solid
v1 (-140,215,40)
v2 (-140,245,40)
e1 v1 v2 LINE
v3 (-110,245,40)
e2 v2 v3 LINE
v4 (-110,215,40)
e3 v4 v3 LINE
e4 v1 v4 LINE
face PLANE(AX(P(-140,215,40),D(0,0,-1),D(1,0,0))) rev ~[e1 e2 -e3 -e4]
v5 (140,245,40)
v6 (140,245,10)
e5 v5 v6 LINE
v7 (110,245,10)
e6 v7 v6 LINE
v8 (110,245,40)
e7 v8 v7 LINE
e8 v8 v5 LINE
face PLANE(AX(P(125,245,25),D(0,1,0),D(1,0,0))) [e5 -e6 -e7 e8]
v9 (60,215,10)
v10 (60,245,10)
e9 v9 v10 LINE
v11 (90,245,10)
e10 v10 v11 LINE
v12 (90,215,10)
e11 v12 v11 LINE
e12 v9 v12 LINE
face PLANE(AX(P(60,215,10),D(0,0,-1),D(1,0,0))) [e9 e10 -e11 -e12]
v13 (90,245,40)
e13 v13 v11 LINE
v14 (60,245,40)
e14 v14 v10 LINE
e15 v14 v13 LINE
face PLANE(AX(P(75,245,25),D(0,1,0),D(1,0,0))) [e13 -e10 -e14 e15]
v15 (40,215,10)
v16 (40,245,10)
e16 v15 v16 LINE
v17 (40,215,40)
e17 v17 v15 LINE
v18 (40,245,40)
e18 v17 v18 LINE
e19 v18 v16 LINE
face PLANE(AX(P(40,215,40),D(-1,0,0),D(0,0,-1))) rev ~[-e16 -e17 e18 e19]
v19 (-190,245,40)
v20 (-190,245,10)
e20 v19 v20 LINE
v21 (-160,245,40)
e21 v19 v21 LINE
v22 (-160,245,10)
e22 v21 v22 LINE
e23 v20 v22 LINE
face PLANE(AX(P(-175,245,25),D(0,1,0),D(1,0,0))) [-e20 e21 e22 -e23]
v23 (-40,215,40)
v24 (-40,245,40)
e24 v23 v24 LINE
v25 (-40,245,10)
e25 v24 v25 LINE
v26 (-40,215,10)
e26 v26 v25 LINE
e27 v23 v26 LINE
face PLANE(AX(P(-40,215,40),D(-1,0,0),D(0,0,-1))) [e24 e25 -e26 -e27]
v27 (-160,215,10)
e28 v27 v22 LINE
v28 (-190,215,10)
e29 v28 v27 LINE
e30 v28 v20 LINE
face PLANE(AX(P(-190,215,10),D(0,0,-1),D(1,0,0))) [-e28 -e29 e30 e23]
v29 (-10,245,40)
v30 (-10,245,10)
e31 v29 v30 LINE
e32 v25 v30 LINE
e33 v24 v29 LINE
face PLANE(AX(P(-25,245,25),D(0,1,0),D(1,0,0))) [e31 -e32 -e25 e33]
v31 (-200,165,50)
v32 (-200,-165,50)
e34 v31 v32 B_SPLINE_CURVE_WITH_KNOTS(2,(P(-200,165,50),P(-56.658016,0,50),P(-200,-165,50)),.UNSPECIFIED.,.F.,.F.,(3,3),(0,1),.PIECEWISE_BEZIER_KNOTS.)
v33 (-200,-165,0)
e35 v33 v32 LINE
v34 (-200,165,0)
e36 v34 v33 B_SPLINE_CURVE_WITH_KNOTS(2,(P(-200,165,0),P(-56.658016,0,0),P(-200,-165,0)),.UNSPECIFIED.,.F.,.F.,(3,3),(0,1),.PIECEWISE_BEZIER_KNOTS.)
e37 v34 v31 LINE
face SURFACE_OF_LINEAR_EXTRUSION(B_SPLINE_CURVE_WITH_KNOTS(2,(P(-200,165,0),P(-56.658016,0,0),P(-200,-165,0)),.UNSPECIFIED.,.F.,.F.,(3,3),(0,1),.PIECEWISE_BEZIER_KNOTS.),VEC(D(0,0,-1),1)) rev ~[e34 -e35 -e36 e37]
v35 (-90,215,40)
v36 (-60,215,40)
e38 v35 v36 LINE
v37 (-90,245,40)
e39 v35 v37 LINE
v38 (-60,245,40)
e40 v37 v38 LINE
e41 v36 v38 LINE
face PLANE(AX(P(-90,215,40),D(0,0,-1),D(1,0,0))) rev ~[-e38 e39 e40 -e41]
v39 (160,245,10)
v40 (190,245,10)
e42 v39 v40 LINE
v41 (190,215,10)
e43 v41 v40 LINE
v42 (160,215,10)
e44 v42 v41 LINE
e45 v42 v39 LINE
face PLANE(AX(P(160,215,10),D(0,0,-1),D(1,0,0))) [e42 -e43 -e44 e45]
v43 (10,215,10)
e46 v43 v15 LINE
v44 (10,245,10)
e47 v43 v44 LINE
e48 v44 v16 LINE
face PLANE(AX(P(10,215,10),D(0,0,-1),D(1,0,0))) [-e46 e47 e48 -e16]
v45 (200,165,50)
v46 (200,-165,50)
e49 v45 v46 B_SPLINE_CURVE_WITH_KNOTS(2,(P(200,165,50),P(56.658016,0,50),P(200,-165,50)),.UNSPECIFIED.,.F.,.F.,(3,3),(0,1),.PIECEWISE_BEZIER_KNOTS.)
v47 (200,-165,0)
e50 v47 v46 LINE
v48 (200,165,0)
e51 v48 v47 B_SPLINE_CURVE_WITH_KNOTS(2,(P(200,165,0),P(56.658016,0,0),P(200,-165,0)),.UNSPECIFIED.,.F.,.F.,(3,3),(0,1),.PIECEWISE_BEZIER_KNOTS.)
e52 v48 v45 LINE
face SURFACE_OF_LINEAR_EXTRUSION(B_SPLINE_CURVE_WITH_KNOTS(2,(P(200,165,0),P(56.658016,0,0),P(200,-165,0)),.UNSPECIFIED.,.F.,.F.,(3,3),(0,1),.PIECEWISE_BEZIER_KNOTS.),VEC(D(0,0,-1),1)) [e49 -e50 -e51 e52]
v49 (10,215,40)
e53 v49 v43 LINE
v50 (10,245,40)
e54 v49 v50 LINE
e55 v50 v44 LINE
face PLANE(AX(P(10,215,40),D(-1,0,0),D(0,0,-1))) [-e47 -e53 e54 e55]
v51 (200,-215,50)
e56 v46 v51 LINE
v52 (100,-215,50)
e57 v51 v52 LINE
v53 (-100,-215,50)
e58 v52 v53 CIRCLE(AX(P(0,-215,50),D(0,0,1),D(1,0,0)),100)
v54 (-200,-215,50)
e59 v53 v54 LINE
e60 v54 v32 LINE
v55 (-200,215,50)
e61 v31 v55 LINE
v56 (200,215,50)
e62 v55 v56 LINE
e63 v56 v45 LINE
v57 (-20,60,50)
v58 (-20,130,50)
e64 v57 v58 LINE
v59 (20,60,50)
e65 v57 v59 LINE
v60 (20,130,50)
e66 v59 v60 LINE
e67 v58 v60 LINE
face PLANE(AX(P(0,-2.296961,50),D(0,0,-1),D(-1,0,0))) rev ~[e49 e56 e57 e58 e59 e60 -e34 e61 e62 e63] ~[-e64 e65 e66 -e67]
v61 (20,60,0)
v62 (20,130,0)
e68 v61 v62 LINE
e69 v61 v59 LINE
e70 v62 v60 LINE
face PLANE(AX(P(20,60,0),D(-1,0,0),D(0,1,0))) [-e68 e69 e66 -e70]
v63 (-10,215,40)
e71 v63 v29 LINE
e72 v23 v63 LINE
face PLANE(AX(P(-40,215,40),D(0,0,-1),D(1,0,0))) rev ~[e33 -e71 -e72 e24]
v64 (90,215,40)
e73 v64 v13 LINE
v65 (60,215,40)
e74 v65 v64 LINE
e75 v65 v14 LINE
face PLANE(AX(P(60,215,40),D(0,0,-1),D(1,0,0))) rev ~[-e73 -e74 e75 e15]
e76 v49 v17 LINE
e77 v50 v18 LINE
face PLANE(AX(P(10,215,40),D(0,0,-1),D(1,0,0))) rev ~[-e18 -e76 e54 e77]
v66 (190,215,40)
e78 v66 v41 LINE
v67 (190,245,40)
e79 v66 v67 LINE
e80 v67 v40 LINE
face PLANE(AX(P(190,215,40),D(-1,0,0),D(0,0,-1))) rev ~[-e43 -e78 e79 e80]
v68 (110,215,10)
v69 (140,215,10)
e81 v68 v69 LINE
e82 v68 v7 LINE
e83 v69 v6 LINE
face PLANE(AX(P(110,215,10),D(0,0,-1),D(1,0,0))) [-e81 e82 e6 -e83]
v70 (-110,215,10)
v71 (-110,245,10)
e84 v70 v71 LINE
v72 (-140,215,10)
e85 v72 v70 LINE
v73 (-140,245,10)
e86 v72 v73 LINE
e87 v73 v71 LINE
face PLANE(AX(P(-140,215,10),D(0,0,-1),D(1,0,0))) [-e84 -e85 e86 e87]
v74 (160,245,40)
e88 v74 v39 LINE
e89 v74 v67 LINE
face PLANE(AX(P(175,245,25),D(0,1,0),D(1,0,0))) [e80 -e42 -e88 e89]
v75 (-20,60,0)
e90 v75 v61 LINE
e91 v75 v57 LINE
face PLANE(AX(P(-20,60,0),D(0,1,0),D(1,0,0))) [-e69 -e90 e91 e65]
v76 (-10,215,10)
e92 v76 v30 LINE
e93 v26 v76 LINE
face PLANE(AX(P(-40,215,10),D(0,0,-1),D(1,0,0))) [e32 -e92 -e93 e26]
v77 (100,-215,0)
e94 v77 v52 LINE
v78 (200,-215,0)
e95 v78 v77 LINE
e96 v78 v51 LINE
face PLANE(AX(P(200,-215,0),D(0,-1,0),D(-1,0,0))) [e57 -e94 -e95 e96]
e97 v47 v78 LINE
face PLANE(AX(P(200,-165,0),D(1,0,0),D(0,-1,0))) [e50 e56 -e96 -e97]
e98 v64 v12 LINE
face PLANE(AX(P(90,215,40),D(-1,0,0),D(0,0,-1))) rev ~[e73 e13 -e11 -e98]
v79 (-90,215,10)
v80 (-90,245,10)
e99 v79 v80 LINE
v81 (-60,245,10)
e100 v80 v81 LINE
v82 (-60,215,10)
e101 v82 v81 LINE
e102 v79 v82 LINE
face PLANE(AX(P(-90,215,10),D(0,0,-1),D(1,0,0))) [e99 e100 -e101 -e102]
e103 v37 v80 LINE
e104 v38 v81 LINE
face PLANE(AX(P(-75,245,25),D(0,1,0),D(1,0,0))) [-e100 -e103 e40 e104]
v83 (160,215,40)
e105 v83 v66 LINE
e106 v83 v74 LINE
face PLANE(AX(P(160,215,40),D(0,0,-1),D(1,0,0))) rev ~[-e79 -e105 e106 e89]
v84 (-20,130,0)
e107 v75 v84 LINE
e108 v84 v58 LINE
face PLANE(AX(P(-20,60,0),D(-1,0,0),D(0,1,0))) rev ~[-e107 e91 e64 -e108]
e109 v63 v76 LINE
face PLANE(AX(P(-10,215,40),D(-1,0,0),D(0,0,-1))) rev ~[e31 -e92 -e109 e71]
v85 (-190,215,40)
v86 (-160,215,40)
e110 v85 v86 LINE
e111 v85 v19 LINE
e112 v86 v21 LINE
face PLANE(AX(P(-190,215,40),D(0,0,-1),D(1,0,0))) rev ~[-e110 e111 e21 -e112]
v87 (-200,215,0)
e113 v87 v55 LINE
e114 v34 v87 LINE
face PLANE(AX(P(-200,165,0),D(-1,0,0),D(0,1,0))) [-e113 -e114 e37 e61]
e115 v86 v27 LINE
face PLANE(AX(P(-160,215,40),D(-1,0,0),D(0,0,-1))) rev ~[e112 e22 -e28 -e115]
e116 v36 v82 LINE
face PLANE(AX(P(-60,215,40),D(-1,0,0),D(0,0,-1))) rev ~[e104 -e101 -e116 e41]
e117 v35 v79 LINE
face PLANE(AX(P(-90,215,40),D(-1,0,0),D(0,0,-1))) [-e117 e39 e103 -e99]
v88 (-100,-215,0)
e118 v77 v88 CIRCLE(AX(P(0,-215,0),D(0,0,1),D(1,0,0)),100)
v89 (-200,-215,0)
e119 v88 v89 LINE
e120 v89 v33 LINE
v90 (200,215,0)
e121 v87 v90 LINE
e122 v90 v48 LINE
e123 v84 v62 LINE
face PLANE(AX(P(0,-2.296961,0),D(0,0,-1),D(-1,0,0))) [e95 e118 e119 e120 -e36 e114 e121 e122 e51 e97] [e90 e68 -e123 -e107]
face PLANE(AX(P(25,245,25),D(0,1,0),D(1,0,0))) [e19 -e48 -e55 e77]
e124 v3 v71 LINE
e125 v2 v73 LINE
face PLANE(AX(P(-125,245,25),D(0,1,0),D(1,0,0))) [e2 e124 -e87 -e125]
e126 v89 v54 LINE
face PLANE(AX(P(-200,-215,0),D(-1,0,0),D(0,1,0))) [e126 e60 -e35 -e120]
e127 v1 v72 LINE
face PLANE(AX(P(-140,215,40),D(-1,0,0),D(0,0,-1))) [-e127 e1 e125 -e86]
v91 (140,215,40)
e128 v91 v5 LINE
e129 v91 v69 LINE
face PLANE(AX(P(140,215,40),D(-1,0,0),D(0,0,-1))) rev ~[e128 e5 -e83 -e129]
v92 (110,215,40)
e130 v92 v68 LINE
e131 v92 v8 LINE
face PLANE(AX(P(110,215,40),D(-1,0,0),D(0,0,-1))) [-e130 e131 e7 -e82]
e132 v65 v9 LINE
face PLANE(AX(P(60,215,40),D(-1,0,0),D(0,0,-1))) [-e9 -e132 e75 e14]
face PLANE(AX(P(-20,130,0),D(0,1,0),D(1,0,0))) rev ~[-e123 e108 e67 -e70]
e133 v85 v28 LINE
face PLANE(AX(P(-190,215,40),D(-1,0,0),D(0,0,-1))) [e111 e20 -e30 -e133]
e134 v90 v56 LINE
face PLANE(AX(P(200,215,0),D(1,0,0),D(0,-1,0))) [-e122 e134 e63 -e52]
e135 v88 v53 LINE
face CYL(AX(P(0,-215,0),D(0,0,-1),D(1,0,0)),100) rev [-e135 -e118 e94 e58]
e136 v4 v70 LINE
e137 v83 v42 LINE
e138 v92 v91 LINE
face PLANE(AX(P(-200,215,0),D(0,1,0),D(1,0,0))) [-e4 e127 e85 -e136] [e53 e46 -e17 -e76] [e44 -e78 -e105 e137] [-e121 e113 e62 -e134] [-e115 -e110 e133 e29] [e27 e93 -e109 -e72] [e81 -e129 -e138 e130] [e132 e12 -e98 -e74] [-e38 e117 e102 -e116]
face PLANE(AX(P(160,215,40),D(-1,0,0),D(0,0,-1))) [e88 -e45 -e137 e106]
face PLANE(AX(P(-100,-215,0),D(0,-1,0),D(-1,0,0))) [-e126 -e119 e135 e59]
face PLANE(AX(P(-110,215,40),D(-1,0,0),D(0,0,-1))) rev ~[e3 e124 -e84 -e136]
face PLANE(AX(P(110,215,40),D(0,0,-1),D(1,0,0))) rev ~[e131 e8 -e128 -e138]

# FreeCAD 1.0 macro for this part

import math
import FreeCAD as App
import Part
import Sketcher

V = App.Vector
Q = App.Units.Quantity

doc = App.newDocument("Part")
params = doc.addObject("Spreadsheet::Sheet", "Params")
for row, (alias, value) in enumerate([
    ("sketch1_radius", "100 mm"),
    ("sketch1_width", "40 mm"),
    ("sketch1_height", "50 mm"),
    ("sketch1_height2", "70 mm"),
    ("pad1_length", "50 mm"),
    ("sketch2_width", "30 mm"),
    ("pad2_length", "30 mm"),
], start=1):
    params.set(f"A{row}", alias)
    params.set(f"B{row}", "=" + value)
    params.setAlias(f"B{row}", alias)

body = doc.addObject("PartDesign::Body", "Body")

sketch1 = body.newObject("Sketcher::SketchObject", "Sketch")
sketch1.AttachmentSupport = (doc.getObject("XY_Plane"), [""])
sketch1.MapMode = "FlatFace"
sketch1.addGeometry([
    Part.LineSegment(V(-200, -215, 0), V(-100, -215, 0)),
    Part.ArcOfCircle(Part.Circle(V(0, -215, 0), V(0, 0, 1), 100), math.radians(0), math.radians(180)),
    Part.LineSegment(V(100, -215, 0), V(200, -215, 0)),
    Part.LineSegment(V(200, -215, 0), V(200, -165, 0)),
    Part.BSplineCurve([V(200, 165, 0), V(56.658016, 0, 0), V(200, -165, 0)], [3, 3], [0, 1], False, 2, [1, 1, 1], False),
    Part.LineSegment(V(200, 165, 0), V(200, 215, 0)),
    Part.LineSegment(V(200, 215, 0), V(-200, 215, 0)),
    Part.LineSegment(V(-200, 215, 0), V(-200, 165, 0)),
    Part.BSplineCurve([V(-200, 165, 0), V(-56.658016, 0, 0), V(-200, -165, 0)], [3, 3], [0, 1], False, 2, [1, 1, 1], False),
    Part.LineSegment(V(-200, -165, 0), V(-200, -215, 0)),
    Part.LineSegment(V(-20, 60, 0), V(-20, 130, 0)),
    Part.LineSegment(V(-20, 130, 0), V(20, 130, 0)),
    Part.LineSegment(V(20, 130, 0), V(20, 60, 0)),
    Part.LineSegment(V(20, 60, 0), V(-20, 60, 0)),
], False)
sketch1.addConstraint([
    Sketcher.Constraint("Block", 4),
    Sketcher.Constraint("Block", 8),
    Sketcher.Constraint("Coincident", 0, 2, 1, 2),
    Sketcher.Constraint("Coincident", 1, 1, 2, 1),
    Sketcher.Constraint("Coincident", 2, 2, 3, 1),
    Sketcher.Constraint("Coincident", 3, 2, 4, 2),
    Sketcher.Constraint("Coincident", 4, 1, 5, 1),
    Sketcher.Constraint("Coincident", 5, 2, 6, 1),
    Sketcher.Constraint("Coincident", 6, 2, 7, 1),
    Sketcher.Constraint("Coincident", 7, 2, 8, 1),
    Sketcher.Constraint("Coincident", 8, 2, 9, 1),
    Sketcher.Constraint("Coincident", 9, 2, 0, 1),
    Sketcher.Constraint("Coincident", 10, 2, 11, 1),
    Sketcher.Constraint("Coincident", 11, 2, 12, 1),
    Sketcher.Constraint("Coincident", 12, 2, 13, 1),
    Sketcher.Constraint("Coincident", 13, 2, 10, 1),
    Sketcher.Constraint("Horizontal", 0),
    Sketcher.Constraint("Horizontal", 2),
    Sketcher.Constraint("Vertical", 3),
    Sketcher.Constraint("Vertical", 5),
    Sketcher.Constraint("Horizontal", 6),
    Sketcher.Constraint("Vertical", 7),
    Sketcher.Constraint("Vertical", 9),
    Sketcher.Constraint("Vertical", 10),
    Sketcher.Constraint("Horizontal", 11),
    Sketcher.Constraint("Vertical", 12),
    Sketcher.Constraint("Horizontal", 13),
    Sketcher.Constraint("Symmetric", 0, 2, 1, 1, -2),
    Sketcher.Constraint("Horizontal", 1, 3, 0, 2),
    Sketcher.Constraint("Equal", 3, 5),
    Sketcher.Constraint("Radius", 1, Q("100 mm")),
    Sketcher.Constraint("DistanceX", 11, 1, 11, 2, Q("40 mm")),
    Sketcher.Constraint("DistanceY", 3, 1, 3, 2, Q("50 mm")),
    Sketcher.Constraint("DistanceY", 10, 1, 10, 2, Q("70 mm")),
    Sketcher.Constraint("DistanceX", 10, 2, -1, 1, Q("20 mm")),
    Sketcher.Constraint("DistanceY", -1, 1, 10, 2, Q("130 mm")),
])
sketch1.setExpression("Constraints[30]", "Params.sketch1_radius")
sketch1.setExpression("Constraints[31]", "Params.sketch1_width")
sketch1.setExpression("Constraints[32]", "Params.sketch1_height")
sketch1.setExpression("Constraints[33]", "Params.sketch1_height2")
pad1 = body.newObject("PartDesign::Pad", "Pad")
pad1.Profile = sketch1
pad1.setExpression("Length", "Params.pad1_length")

sketch2 = body.newObject("Sketcher::SketchObject", "Sketch001")
sketch2.AttachmentSupport = (doc.getObject("XZ_Plane"), [""])
sketch2.MapMode = "FlatFace"
sketch2.AttachmentOffset = App.Placement(V(0, 0, -215), App.Rotation())
sketch2.addGeometry([
    Part.LineSegment(V(-190, 10, 0), V(-190, 40, 0)),
    Part.LineSegment(V(-190, 40, 0), V(-160, 40, 0)),
    Part.LineSegment(V(-160, 40, 0), V(-160, 10, 0)),
    Part.LineSegment(V(-160, 10, 0), V(-190, 10, 0)),
    Part.LineSegment(V(-140, 10, 0), V(-140, 40, 0)),
    Part.LineSegment(V(-140, 40, 0), V(-110, 40, 0)),
    Part.LineSegment(V(-110, 40, 0), V(-110, 10, 0)),
    Part.LineSegment(V(-110, 10, 0), V(-140, 10, 0)),
    Part.LineSegment(V(-90, 10, 0), V(-90, 40, 0)),
    Part.LineSegment(V(-90, 40, 0), V(-60, 40, 0)),
    Part.LineSegment(V(-60, 40, 0), V(-60, 10, 0)),
    Part.LineSegment(V(-60, 10, 0), V(-90, 10, 0)),
    Part.LineSegment(V(-40, 10, 0), V(-40, 40, 0)),
    Part.LineSegment(V(-40, 40, 0), V(-10, 40, 0)),
    Part.LineSegment(V(-10, 40, 0), V(-10, 10, 0)),
    Part.LineSegment(V(-10, 10, 0), V(-40, 10, 0)),
    Part.LineSegment(V(10, 10, 0), V(10, 40, 0)),
    Part.LineSegment(V(10, 40, 0), V(40, 40, 0)),
    Part.LineSegment(V(40, 40, 0), V(40, 10, 0)),
    Part.LineSegment(V(40, 10, 0), V(10, 10, 0)),
    Part.LineSegment(V(60, 10, 0), V(60, 40, 0)),
    Part.LineSegment(V(60, 40, 0), V(90, 40, 0)),
    Part.LineSegment(V(90, 40, 0), V(90, 10, 0)),
    Part.LineSegment(V(90, 10, 0), V(60, 10, 0)),
    Part.LineSegment(V(110, 10, 0), V(110, 40, 0)),
    Part.LineSegment(V(110, 40, 0), V(140, 40, 0)),
    Part.LineSegment(V(140, 40, 0), V(140, 10, 0)),
    Part.LineSegment(V(140, 10, 0), V(110, 10, 0)),
    Part.LineSegment(V(160, 10, 0), V(160, 40, 0)),
    Part.LineSegment(V(160, 40, 0), V(190, 40, 0)),
    Part.LineSegment(V(190, 40, 0), V(190, 10, 0)),
    Part.LineSegment(V(190, 10, 0), V(160, 10, 0)),
], False)
sketch2.addConstraint([
    Sketcher.Constraint("Coincident", 0, 2, 1, 1),
    Sketcher.Constraint("Coincident", 1, 2, 2, 1),
    Sketcher.Constraint("Coincident", 2, 2, 3, 1),
    Sketcher.Constraint("Coincident", 3, 2, 0, 1),
    Sketcher.Constraint("Coincident", 4, 2, 5, 1),
    Sketcher.Constraint("Coincident", 5, 2, 6, 1),
    Sketcher.Constraint("Coincident", 6, 2, 7, 1),
    Sketcher.Constraint("Coincident", 7, 2, 4, 1),
    Sketcher.Constraint("Coincident", 8, 2, 9, 1),
    Sketcher.Constraint("Coincident", 9, 2, 10, 1),
    Sketcher.Constraint("Coincident", 10, 2, 11, 1),
    Sketcher.Constraint("Coincident", 11, 2, 8, 1),
    Sketcher.Constraint("Coincident", 12, 2, 13, 1),
    Sketcher.Constraint("Coincident", 13, 2, 14, 1),
    Sketcher.Constraint("Coincident", 14, 2, 15, 1),
    Sketcher.Constraint("Coincident", 15, 2, 12, 1),
    Sketcher.Constraint("Coincident", 16, 2, 17, 1),
    Sketcher.Constraint("Coincident", 17, 2, 18, 1),
    Sketcher.Constraint("Coincident", 18, 2, 19, 1),
    Sketcher.Constraint("Coincident", 19, 2, 16, 1),
    Sketcher.Constraint("Coincident", 20, 2, 21, 1),
    Sketcher.Constraint("Coincident", 21, 2, 22, 1),
    Sketcher.Constraint("Coincident", 22, 2, 23, 1),
    Sketcher.Constraint("Coincident", 23, 2, 20, 1),
    Sketcher.Constraint("Coincident", 24, 2, 25, 1),
    Sketcher.Constraint("Coincident", 25, 2, 26, 1),
    Sketcher.Constraint("Coincident", 26, 2, 27, 1),
    Sketcher.Constraint("Coincident", 27, 2, 24, 1),
    Sketcher.Constraint("Coincident", 28, 2, 29, 1),
    Sketcher.Constraint("Coincident", 29, 2, 30, 1),
    Sketcher.Constraint("Coincident", 30, 2, 31, 1),
    Sketcher.Constraint("Coincident", 31, 2, 28, 1),
    Sketcher.Constraint("Vertical", 0),
    Sketcher.Constraint("Horizontal", 1),
    Sketcher.Constraint("Vertical", 2),
    Sketcher.Constraint("Horizontal", 3),
    Sketcher.Constraint("Vertical", 4),
    Sketcher.Constraint("Horizontal", 5),
    Sketcher.Constraint("Vertical", 6),
    Sketcher.Constraint("Horizontal", 7),
    Sketcher.Constraint("Vertical", 8),
    Sketcher.Constraint("Horizontal", 9),
    Sketcher.Constraint("Vertical", 10),
    Sketcher.Constraint("Horizontal", 11),
    Sketcher.Constraint("Vertical", 12),
    Sketcher.Constraint("Horizontal", 13),
    Sketcher.Constraint("Vertical", 14),
    Sketcher.Constraint("Horizontal", 15),
    Sketcher.Constraint("Vertical", 16),
    Sketcher.Constraint("Horizontal", 17),
    Sketcher.Constraint("Vertical", 18),
    Sketcher.Constraint("Horizontal", 19),
    Sketcher.Constraint("Vertical", 20),
    Sketcher.Constraint("Horizontal", 21),
    Sketcher.Constraint("Vertical", 22),
    Sketcher.Constraint("Horizontal", 23),
    Sketcher.Constraint("Vertical", 24),
    Sketcher.Constraint("Horizontal", 25),
    Sketcher.Constraint("Vertical", 26),
    Sketcher.Constraint("Horizontal", 27),
    Sketcher.Constraint("Vertical", 28),
    Sketcher.Constraint("Horizontal", 29),
    Sketcher.Constraint("Vertical", 30),
    Sketcher.Constraint("Horizontal", 31),
    Sketcher.Constraint("Symmetric", 13, 2, 16, 2, -2),
    Sketcher.Constraint("Symmetric", 15, 2, 18, 2, -2),
    Sketcher.Constraint("Symmetric", 9, 2, 20, 2, -2),
    Sketcher.Constraint("Symmetric", 11, 2, 22, 2, -2),
    Sketcher.Constraint("Symmetric", 5, 2, 24, 2, -2),
    Sketcher.Constraint("Symmetric", 7, 2, 26, 2, -2),
    Sketcher.Constraint("Symmetric", 1, 2, 28, 2, -2),
    Sketcher.Constraint("Symmetric", 3, 2, 30, 2, -2),
    Sketcher.Constraint("Horizontal", 1, 2, 4, 2),
    Sketcher.Constraint("Horizontal", 3, 2, 6, 2),
    Sketcher.Constraint("Horizontal", 5, 2, 8, 2),
    Sketcher.Constraint("Horizontal", 7, 2, 10, 2),
    Sketcher.Constraint("Horizontal", 9, 2, 12, 2),
    Sketcher.Constraint("Horizontal", 11, 2, 14, 2),
    Sketcher.Constraint("Equal", 3, 5),
    Sketcher.Constraint("Equal", 7, 9),
    Sketcher.Constraint("Equal", 11, 13),
    Sketcher.Constraint("Equal", 31, 0),
    Sketcher.Constraint("DistanceX", 1, 1, 1, 2, Q("30 mm")),
    Sketcher.Constraint("DistanceX", 0, 2, -1, 1, Q("190 mm")),
    Sketcher.Constraint("DistanceY", -1, 1, 0, 2, Q("40 mm")),
    Sketcher.Constraint("DistanceX", 4, 2, -1, 1, Q("140 mm")),
    Sketcher.Constraint("DistanceX", 8, 2, -1, 1, Q("90 mm")),
    Sketcher.Constraint("DistanceX", 12, 2, -1, 1, Q("40 mm")),
])
sketch2.setExpression("Constraints[82]", "Params.sketch2_width")
pad2 = body.newObject("PartDesign::Pad", "Pad001")
pad2.Profile = sketch2
pad2.setExpression("Length", "Params.pad2_length")
pad2.Reversed = True

doc.recompute()
